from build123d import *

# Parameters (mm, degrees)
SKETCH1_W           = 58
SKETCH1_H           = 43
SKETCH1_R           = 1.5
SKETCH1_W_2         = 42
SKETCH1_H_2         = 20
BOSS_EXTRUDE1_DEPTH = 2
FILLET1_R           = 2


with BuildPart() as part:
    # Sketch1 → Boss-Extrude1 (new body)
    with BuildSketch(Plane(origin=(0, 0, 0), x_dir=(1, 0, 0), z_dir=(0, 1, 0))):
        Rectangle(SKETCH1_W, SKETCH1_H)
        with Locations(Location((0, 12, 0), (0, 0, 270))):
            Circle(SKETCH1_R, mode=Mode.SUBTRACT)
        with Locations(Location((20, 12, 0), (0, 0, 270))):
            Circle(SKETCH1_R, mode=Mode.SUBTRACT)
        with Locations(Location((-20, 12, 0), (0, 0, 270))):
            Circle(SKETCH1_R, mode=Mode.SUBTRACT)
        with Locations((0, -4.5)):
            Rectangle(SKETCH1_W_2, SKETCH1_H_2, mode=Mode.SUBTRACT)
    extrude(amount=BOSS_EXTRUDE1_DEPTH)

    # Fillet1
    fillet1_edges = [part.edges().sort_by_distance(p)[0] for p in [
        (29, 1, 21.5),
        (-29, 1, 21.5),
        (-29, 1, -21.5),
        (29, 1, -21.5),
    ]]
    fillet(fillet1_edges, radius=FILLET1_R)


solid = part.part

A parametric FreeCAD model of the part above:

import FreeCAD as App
import Part
import Sketcher

V = App.Vector
Q = App.Units.Quantity


def edges_at(feature, points):
    """Names of the edges that pass closest to the given points."""
    edges = feature.Shape.Edges
    near = lambda p: min(range(len(edges)), key=lambda i: edges[i].distToShape(Part.Vertex(*p))[0])
    return sorted({f"Edge{near(p) + 1}" for p in points})

doc = App.newDocument("Part")
params = doc.addObject("Spreadsheet::Sheet", "Params")
for row, (alias, value) in enumerate([
    ("sketch1_diameter", "3 mm"),
    ("sketch1_width", "58 mm"),
    ("sketch1_width2", "42 mm"),
    ("sketch1_height", "43 mm"),
    ("sketch1_height2", "20 mm"),
    ("pad1_length", "2 mm"),
    ("fillet_radius", "2 mm"),
], start=1):
    params.set(f"A{row}", alias)
    params.set(f"B{row}", "=" + value)
    params.setAlias(f"B{row}", alias)

body = doc.addObject("PartDesign::Body", "Body")

# Sketch on XZ plane
sketch1 = doc.addObject("Sketcher::SketchObject", "Sketch")
body.addObject(sketch1)
sketch1.AttachmentSupport = (doc.XZ_Plane, [""])
sketch1.MapMode = "FlatFace"
sketch1.addGeometry(Part.LineSegment(V(-29, -21.5, 0), V(-29, 21.5, 0)), False)
sketch1.addGeometry(Part.LineSegment(V(-29, 21.5, 0), V(29, 21.5, 0)), False)
sketch1.addGeometry(Part.LineSegment(V(29, 21.5, 0), V(29, -21.5, 0)), False)
sketch1.addGeometry(Part.LineSegment(V(29, -21.5, 0), V(-29, -21.5, 0)), False)
sketch1.addGeometry(Part.LineSegment(V(21, 14.5, 0), V(-21, 14.5, 0)), False)
sketch1.addGeometry(Part.LineSegment(V(-21, 14.5, 0), V(-21, -5.5, 0)), False)
sketch1.addGeometry(Part.LineSegment(V(-21, -5.5, 0), V(21, -5.5, 0)), False)
sketch1.addGeometry(Part.LineSegment(V(21, -5.5, 0), V(21, 14.5, 0)), False)
sketch1.addGeometry(Part.Circle(V(-20, -12, 0), V(0, 0, 1), 1.5), False)
sketch1.addGeometry(Part.Circle(V(0, -12, 0), V(0, 0, 1), 1.5), False)
sketch1.addGeometry(Part.Circle(V(20, -12, 0), V(0, 0, 1), 1.5), False)
sketch1.addConstraint(Sketcher.Constraint("Coincident", 0, 2, 1, 1))
sketch1.addConstraint(Sketcher.Constraint("Coincident", 1, 2, 2, 1))
sketch1.addConstraint(Sketcher.Constraint("Coincident", 2, 2, 3, 1))
sketch1.addConstraint(Sketcher.Constraint("Coincident", 3, 2, 0, 1))
sketch1.addConstraint(Sketcher.Constraint("Coincident", 4, 2, 5, 1))
sketch1.addConstraint(Sketcher.Constraint("Coincident", 5, 2, 6, 1))
sketch1.addConstraint(Sketcher.Constraint("Coincident", 6, 2, 7, 1))
sketch1.addConstraint(Sketcher.Constraint("Coincident", 7, 2, 4, 1))
sketch1.addConstraint(Sketcher.Constraint("Vertical", 0))
sketch1.addConstraint(Sketcher.Constraint("Horizontal", 1))
sketch1.addConstraint(Sketcher.Constraint("Vertical", 2))
sketch1.addConstraint(Sketcher.Constraint("Horizontal", 3))
sketch1.addConstraint(Sketcher.Constraint("Horizontal", 4))
sketch1.addConstraint(Sketcher.Constraint("Vertical", 5))
sketch1.addConstraint(Sketcher.Constraint("Horizontal", 6))
sketch1.addConstraint(Sketcher.Constraint("Vertical", 7))
sketch1.addConstraint(Sketcher.Constraint("Equal", 8, 9))
sketch1.addConstraint(Sketcher.Constraint("Equal", 9, 10))
sketch1.addConstraint(Sketcher.Constraint("Symmetric", 0, 2, 2, 2, -1, 1))
sketch1.addConstraint(Sketcher.Constraint("Symmetric", 8, 3, 10, 3, -2))
sketch1.addConstraint(Sketcher.Constraint("PointOnObject", 9, 3, -2))
sketch1.addConstraint(Sketcher.Constraint("Horizontal", 8, 3, 9, 3))
sketch1.addConstraint(Sketcher.Constraint("Diameter", 8, Q("3 mm")))
sketch1.addConstraint(Sketcher.Constraint("DistanceX", 1, 1, 1, 2, Q("58 mm")))
sketch1.addConstraint(Sketcher.Constraint("DistanceX", 4, 2, 4, 1, Q("42 mm")))
sketch1.addConstraint(Sketcher.Constraint("DistanceY", 0, 1, 0, 2, Q("43 mm")))
sketch1.addConstraint(Sketcher.Constraint("DistanceY", 5, 2, 5, 1, Q("20 mm")))
sketch1.addConstraint(Sketcher.Constraint("DistanceX", 8, 3, -1, 1, Q("20 mm")))
sketch1.addConstraint(Sketcher.Constraint("DistanceY", 8, 3, -1, 1, Q("12 mm")))
sketch1.addConstraint(Sketcher.Constraint("DistanceX", 4, 2, -1, 1, Q("21 mm")))
sketch1.addConstraint(Sketcher.Constraint("DistanceY", 4, 2, 0, 2, Q("7 mm")))
sketch1.setExpression("Constraints[22]", "Params.sketch1_diameter")
sketch1.setExpression("Constraints[23]", "Params.sketch1_width")
sketch1.setExpression("Constraints[24]", "Params.sketch1_width2")
sketch1.setExpression("Constraints[25]", "Params.sketch1_height")
sketch1.setExpression("Constraints[26]", "Params.sketch1_height2")
pad1 = doc.addObject("PartDesign::Pad", "Pad")
body.addObject(pad1)
pad1.Profile = sketch1
pad1.setExpression("Length", "Params.pad1_length")
pad1.Reversed = True
doc.recompute()

fillet = doc.addObject("PartDesign::Fillet", "Fillet")
body.addObject(fillet)
fillet.Base = (pad1, edges_at(pad1, [
    (29, 1, 21.5),
    (-29, 1, 21.5),
    (-29, 1, -21.5),
    (29, 1, -21.5),
]))
fillet.setExpression("Radius", "Params.fillet_radius")

doc.recompute()
